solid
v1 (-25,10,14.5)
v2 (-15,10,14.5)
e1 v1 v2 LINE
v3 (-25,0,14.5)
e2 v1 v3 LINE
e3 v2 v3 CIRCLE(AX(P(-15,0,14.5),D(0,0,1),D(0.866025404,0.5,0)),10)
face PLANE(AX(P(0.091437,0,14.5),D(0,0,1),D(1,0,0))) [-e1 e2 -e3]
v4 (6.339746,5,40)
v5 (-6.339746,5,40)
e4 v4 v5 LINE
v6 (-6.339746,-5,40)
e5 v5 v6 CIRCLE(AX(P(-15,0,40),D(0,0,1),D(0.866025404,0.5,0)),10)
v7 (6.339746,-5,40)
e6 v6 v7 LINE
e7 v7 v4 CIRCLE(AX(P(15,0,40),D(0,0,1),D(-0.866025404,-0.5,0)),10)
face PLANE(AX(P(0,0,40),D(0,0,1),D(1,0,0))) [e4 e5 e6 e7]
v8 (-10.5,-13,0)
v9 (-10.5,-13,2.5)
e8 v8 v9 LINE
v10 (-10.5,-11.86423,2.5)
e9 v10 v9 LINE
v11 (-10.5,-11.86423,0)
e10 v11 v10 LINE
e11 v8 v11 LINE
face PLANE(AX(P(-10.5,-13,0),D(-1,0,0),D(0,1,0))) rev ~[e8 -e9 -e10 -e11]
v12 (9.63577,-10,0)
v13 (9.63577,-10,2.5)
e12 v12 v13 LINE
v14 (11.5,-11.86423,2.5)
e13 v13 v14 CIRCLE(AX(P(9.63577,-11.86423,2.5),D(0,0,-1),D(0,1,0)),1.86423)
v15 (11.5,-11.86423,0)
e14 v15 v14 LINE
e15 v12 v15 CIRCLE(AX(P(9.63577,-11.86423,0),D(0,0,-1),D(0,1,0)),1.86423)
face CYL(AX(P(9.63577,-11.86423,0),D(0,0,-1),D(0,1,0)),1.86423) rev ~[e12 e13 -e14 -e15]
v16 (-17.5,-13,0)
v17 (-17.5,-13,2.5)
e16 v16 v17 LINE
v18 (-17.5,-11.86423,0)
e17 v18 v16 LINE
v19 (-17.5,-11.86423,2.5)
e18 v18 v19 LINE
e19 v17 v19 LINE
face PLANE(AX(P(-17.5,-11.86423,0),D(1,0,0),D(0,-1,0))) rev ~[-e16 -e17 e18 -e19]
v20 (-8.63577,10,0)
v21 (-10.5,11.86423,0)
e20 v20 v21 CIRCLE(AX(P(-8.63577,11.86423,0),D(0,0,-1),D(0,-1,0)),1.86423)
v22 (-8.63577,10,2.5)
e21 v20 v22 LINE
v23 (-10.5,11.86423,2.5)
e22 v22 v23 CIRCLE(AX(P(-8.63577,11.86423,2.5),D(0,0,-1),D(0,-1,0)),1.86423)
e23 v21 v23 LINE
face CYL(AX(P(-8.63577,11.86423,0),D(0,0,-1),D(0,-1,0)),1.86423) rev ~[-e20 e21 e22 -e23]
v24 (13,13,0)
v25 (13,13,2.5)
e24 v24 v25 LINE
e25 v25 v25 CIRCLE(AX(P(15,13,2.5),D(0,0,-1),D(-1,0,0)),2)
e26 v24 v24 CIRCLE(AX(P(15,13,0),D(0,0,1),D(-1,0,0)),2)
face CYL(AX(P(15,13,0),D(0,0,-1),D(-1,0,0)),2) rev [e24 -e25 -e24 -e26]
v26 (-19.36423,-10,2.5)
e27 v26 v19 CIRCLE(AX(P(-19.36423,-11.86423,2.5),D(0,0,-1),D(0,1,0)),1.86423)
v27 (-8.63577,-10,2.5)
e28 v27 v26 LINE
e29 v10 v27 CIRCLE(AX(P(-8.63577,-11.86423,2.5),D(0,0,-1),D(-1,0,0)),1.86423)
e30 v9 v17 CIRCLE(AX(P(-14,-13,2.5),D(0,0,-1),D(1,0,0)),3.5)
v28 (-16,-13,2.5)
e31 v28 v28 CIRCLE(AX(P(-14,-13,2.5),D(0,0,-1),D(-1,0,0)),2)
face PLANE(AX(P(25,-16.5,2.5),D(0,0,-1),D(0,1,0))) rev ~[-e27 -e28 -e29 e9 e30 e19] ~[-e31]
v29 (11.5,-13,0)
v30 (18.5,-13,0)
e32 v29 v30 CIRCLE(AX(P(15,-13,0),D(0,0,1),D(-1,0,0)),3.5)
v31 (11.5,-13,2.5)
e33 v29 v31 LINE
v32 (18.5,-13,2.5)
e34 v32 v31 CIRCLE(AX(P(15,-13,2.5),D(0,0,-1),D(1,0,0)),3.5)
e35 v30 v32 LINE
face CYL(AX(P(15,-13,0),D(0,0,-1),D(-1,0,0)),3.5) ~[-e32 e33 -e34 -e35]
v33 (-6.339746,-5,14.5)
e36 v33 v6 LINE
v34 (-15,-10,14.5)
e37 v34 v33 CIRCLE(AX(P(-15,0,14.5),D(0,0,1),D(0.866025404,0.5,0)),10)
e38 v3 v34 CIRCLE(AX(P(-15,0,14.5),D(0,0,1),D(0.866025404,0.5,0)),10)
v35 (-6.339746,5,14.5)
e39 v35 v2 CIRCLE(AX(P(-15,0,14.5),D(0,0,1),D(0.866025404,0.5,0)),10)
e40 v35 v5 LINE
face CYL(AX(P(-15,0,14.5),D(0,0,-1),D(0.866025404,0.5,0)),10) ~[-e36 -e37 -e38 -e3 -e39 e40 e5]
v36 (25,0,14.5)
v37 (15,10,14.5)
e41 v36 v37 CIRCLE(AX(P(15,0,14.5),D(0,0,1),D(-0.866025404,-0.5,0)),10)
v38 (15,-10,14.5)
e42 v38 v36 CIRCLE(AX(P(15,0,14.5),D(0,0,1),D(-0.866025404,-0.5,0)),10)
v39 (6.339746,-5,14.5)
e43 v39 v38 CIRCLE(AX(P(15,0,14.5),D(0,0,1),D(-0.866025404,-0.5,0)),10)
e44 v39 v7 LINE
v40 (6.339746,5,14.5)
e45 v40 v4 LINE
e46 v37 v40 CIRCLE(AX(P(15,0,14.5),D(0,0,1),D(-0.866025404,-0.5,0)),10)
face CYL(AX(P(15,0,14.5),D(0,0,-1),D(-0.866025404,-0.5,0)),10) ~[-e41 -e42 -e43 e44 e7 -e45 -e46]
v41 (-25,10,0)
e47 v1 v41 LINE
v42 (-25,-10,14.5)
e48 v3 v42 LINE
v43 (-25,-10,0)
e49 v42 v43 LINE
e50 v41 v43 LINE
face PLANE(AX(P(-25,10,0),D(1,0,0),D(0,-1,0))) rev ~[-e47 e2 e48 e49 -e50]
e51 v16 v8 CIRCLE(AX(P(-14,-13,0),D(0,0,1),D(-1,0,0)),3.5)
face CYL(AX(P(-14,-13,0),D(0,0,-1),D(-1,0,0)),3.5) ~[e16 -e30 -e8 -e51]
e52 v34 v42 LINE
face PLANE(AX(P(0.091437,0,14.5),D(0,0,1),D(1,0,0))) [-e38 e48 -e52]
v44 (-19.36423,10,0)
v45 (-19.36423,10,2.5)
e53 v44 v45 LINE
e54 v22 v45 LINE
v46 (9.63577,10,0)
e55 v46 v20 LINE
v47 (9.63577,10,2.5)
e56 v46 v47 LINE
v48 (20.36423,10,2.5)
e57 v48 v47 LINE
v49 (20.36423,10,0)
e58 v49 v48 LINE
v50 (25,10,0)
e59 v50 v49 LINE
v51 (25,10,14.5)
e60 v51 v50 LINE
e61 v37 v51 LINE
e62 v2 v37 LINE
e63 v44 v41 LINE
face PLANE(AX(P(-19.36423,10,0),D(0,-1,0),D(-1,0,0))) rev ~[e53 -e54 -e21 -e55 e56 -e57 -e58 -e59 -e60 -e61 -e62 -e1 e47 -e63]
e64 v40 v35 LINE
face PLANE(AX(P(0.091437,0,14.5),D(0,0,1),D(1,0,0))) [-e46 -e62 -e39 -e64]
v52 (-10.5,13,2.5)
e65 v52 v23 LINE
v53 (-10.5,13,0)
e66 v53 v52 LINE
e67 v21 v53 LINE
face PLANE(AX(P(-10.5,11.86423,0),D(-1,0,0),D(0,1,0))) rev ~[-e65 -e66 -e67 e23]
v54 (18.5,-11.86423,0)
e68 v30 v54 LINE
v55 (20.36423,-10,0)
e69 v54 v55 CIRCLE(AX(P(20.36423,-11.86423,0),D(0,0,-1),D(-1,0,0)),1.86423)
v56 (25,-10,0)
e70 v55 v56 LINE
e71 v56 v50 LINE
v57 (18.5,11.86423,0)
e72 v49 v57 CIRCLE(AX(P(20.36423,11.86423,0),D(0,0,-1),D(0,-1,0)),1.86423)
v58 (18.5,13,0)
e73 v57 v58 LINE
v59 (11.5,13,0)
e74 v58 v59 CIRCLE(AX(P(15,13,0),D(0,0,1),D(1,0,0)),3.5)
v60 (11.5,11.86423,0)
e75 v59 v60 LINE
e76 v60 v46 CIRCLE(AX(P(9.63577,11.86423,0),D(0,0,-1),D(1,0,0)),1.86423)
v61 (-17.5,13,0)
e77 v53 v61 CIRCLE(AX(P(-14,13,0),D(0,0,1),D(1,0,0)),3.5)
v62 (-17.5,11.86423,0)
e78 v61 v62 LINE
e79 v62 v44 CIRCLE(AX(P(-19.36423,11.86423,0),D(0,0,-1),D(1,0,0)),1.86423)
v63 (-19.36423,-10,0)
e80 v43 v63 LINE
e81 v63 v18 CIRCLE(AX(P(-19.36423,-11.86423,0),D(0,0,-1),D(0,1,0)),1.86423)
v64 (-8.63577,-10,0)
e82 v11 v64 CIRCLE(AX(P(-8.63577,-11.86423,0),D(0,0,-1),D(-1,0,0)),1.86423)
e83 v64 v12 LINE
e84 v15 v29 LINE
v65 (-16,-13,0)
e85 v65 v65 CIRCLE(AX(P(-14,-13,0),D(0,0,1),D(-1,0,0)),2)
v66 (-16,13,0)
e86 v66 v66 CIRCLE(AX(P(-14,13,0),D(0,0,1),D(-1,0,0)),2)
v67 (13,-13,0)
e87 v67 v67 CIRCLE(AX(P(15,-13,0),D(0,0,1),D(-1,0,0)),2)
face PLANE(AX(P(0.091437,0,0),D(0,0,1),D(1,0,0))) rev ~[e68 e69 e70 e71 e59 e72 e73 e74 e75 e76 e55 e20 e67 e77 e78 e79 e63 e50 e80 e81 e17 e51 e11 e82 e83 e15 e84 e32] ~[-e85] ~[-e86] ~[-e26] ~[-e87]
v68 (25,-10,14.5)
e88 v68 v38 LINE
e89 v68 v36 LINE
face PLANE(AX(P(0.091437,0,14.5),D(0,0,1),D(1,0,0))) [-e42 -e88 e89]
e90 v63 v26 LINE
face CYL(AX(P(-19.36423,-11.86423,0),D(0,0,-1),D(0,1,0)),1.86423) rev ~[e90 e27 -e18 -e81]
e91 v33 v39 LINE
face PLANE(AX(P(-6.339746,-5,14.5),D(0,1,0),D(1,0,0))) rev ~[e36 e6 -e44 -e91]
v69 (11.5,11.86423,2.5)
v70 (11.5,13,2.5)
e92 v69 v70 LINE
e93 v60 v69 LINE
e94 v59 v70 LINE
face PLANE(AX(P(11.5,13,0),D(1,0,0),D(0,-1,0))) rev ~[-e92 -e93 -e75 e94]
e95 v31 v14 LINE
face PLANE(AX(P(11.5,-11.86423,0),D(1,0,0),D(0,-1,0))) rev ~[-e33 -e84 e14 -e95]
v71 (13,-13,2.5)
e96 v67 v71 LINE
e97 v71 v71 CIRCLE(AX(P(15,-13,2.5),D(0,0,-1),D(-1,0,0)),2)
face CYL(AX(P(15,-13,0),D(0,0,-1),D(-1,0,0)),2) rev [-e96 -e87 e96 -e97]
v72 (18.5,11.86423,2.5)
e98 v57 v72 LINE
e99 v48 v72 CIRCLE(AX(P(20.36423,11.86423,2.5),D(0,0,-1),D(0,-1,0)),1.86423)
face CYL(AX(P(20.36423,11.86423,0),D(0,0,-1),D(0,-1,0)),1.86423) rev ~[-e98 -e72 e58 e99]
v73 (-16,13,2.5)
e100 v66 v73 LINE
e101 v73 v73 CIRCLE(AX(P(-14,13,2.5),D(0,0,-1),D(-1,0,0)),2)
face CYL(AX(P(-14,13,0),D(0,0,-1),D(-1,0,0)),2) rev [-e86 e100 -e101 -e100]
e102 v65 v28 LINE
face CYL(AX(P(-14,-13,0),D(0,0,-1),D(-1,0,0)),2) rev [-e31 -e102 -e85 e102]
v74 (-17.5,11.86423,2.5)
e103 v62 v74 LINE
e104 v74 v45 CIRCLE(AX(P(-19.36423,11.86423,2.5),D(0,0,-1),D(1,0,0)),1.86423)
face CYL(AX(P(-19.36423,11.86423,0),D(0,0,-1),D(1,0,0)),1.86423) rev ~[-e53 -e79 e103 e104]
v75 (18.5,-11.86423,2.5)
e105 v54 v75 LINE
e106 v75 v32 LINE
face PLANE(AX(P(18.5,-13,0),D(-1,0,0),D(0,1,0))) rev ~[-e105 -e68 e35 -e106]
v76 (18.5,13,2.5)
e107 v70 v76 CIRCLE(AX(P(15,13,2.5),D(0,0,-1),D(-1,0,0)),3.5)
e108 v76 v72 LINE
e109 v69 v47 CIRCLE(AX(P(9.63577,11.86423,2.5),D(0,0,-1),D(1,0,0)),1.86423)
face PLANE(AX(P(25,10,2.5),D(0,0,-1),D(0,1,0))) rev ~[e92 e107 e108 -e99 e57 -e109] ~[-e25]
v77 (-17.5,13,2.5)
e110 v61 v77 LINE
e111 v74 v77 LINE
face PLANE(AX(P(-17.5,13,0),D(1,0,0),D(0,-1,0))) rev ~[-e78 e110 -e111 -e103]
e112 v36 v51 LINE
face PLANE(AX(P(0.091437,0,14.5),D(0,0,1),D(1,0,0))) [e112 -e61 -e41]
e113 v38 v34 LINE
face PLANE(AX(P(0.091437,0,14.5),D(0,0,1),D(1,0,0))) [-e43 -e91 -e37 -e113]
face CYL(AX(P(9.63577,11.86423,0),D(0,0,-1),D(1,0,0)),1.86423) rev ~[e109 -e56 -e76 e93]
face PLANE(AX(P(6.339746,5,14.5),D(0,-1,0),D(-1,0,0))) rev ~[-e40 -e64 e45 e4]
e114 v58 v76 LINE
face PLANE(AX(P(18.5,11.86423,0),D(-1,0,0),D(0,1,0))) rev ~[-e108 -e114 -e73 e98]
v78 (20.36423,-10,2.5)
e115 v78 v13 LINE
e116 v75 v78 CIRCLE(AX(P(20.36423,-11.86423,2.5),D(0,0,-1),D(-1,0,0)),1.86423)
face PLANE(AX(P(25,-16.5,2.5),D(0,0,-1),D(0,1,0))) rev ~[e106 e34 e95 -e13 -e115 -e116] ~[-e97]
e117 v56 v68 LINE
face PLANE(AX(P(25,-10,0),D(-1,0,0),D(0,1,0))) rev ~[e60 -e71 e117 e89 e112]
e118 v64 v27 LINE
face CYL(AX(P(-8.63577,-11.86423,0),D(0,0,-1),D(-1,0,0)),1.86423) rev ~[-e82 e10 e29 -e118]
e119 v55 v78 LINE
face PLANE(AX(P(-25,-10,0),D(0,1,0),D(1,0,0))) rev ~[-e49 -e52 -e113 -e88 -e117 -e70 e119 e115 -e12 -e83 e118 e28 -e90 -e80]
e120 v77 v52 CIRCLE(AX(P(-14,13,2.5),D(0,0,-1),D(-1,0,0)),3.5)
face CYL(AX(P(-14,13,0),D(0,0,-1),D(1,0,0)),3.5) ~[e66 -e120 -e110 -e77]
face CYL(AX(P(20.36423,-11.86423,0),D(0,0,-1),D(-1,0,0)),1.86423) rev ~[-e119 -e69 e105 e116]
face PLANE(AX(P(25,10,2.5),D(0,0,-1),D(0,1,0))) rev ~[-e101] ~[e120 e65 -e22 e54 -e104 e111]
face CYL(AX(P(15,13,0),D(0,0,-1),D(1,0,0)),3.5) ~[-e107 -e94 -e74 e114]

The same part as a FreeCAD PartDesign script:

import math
import FreeCAD as App
import Part
import Sketcher
from FreeCAD import Vector
Q = App.Units.Quantity


def add_polygon(sketch, points):
    """Adds a closed chain of lines whose ends are joined by coincident constraints."""
    first, n = sketch.GeometryCount, len(points)
    for a, b in zip(points, points[1:] + points[:1]):
        sketch.addGeometry(Part.LineSegment(App.Vector(*a, 0), App.Vector(*b, 0)), False)
    for i in range(n):
        sketch.addConstraint(Sketcher.Constraint("Coincident", first + i, 2, first + (i + 1) % n, 1))

doc = App.newDocument("Part")
params = doc.addObject("Spreadsheet::Sheet", "Params")
for row, (alias, value) in enumerate([
    ("sketch1_diameter", "4 mm"),
    ("sketch1_radius", "3.5 mm"),
    ("sketch1_height", "20 mm"),
    ("pad1_length", "14.5 mm"),
    ("sketch2_height", "12 mm"),
    ("sketch2_width", "6.5 mm"),
    ("sketch3_radius", "10 mm"),
    ("pad2_length", "25.5 mm"),
], start=1):
    params.set(f"A{row}", alias)
    params.set(f"B{row}", "=" + value)
    params.setAlias(f"B{row}", alias)

body = doc.addObject("PartDesign::Body", "Body")

# Sketch on XY plane
sketch1 = doc.addObject("Sketcher::SketchObject", "Sketch")
body.addObject(sketch1)
sketch1.AttachmentSupport = (doc.XY_Plane, [""])
sketch1.MapMode = "FlatFace"
sketch1.addGeometry([
    Part.LineSegment(Vector(-25, -10, 0), Vector(-19.36423, -10, 0)),  # 0
    Part.ArcOfCircle(Part.Circle(Vector(-19.36423, -11.86423, 0), Vector(0, 0, 1), 1.86423), math.radians(0), math.radians(90)),  # 1
    Part.LineSegment(Vector(-17.5, -11.86423, 0), Vector(-17.5, -13, 0)),  # 2
    Part.ArcOfCircle(Part.Circle(Vector(-14, -13, 0), Vector(0, 0, 1), 3.5), math.radians(180), math.radians(360)),  # 3
    Part.LineSegment(Vector(-10.5, -13, 0), Vector(-10.5, -11.86423, 0)),  # 4
    Part.ArcOfCircle(Part.Circle(Vector(-8.63577, -11.86423, 0), Vector(0, 0, 1), 1.86423), math.radians(90), math.radians(180)),  # 5
    Part.LineSegment(Vector(-8.63577, -10, 0), Vector(9.63577, -10, 0)),  # 6
    Part.ArcOfCircle(Part.Circle(Vector(9.63577, -11.86423, 0), Vector(0, 0, 1), 1.86423), math.radians(0), math.radians(90)),  # 7
    Part.LineSegment(Vector(11.5, -11.86423, 0), Vector(11.5, -13, 0)),  # 8
    Part.ArcOfCircle(Part.Circle(Vector(15, -13, 0), Vector(0, 0, 1), 3.5), math.radians(180), math.radians(360)),  # 9
    Part.LineSegment(Vector(18.5, -13, 0), Vector(18.5, -11.86423, 0)),  # 10
    Part.ArcOfCircle(Part.Circle(Vector(20.36423, -11.86423, 0), Vector(0, 0, 1), 1.86423), math.radians(90), math.radians(180)),  # 11
    Part.LineSegment(Vector(20.36423, -10, 0), Vector(25, -10, 0)),  # 12
    Part.LineSegment(Vector(25, -10, 0), Vector(25, 10, 0)),  # 13
    Part.LineSegment(Vector(25, 10, 0), Vector(20.36423, 10, 0)),  # 14
    Part.ArcOfCircle(Part.Circle(Vector(20.36423, 11.86423, 0), Vector(0, 0, 1), 1.86423), math.radians(180), math.radians(270)),  # 15
    Part.LineSegment(Vector(18.5, 11.86423, 0), Vector(18.5, 13, 0)),  # 16
    Part.ArcOfCircle(Part.Circle(Vector(15, 13, 0), Vector(0, 0, 1), 3.5), math.radians(0), math.radians(180)),  # 17
    Part.LineSegment(Vector(11.5, 13, 0), Vector(11.5, 11.86423, 0)),  # 18
    Part.ArcOfCircle(Part.Circle(Vector(9.63577, 11.86423, 0), Vector(0, 0, 1), 1.86423), math.radians(-90), math.radians(0)),  # 19
    Part.LineSegment(Vector(9.63577, 10, 0), Vector(-8.63577, 10, 0)),  # 20
    Part.ArcOfCircle(Part.Circle(Vector(-8.63577, 11.86423, 0), Vector(0, 0, 1), 1.86423), math.radians(180), math.radians(270)),  # 21
    Part.LineSegment(Vector(-10.5, 11.86423, 0), Vector(-10.5, 13, 0)),  # 22
    Part.ArcOfCircle(Part.Circle(Vector(-14, 13, 0), Vector(0, 0, 1), 3.5), math.radians(0), math.radians(180)),  # 23
    Part.LineSegment(Vector(-17.5, 13, 0), Vector(-17.5, 11.86423, 0)),  # 24
    Part.ArcOfCircle(Part.Circle(Vector(-19.36423, 11.86423, 0), Vector(0, 0, 1), 1.86423), math.radians(-90), math.radians(0)),  # 25
    Part.LineSegment(Vector(-19.36423, 10, 0), Vector(-25, 10, 0)),  # 26
    Part.LineSegment(Vector(-25, 10, 0), Vector(-25, -10, 0)),  # 27
    Part.Circle(Vector(-14, -13, 0), Vector(0, 0, 1), 2),  # 28
    Part.Circle(Vector(15, -13, 0), Vector(0, 0, 1), 2),  # 29
    Part.Circle(Vector(-14, 13, 0), Vector(0, 0, 1), 2),  # 30
    Part.Circle(Vector(15, 13, 0), Vector(0, 0, 1), 2),  # 31
], False)
sketch1.addConstraint([
    Sketcher.Constraint("Tangent", 0, 2, 1, 2),
    Sketcher.Constraint("Tangent", 1, 1, 2, 1),
    Sketcher.Constraint("Tangent", 2, 2, 3, 1),
    Sketcher.Constraint("Tangent", 3, 2, 4, 1),
    Sketcher.Constraint("Tangent", 4, 2, 5, 2),
    Sketcher.Constraint("Tangent", 5, 1, 6, 1),
    Sketcher.Constraint("Tangent", 6, 2, 7, 2),
    Sketcher.Constraint("Tangent", 7, 1, 8, 1),
    Sketcher.Constraint("Tangent", 8, 2, 9, 1),
    Sketcher.Constraint("Tangent", 9, 2, 10, 1),
    Sketcher.Constraint("Tangent", 10, 2, 11, 2),
    Sketcher.Constraint("Tangent", 11, 1, 12, 1),
    Sketcher.Constraint("Coincident", 12, 2, 13, 1),
    Sketcher.Constraint("Coincident", 13, 2, 14, 1),
    Sketcher.Constraint("Tangent", 14, 2, 15, 2),
    Sketcher.Constraint("Tangent", 15, 1, 16, 1),
    Sketcher.Constraint("Tangent", 16, 2, 17, 1),
    Sketcher.Constraint("Tangent", 17, 2, 18, 1),
    Sketcher.Constraint("Tangent", 18, 2, 19, 2),
    Sketcher.Constraint("Tangent", 19, 1, 20, 1),
    Sketcher.Constraint("Tangent", 20, 2, 21, 2),
    Sketcher.Constraint("Tangent", 21, 1, 22, 1),
    Sketcher.Constraint("Tangent", 22, 2, 23, 1),
    Sketcher.Constraint("Tangent", 23, 2, 24, 1),
    Sketcher.Constraint("Tangent", 24, 2, 25, 2),
    Sketcher.Constraint("Tangent", 25, 1, 26, 1),
    Sketcher.Constraint("Coincident", 26, 2, 27, 1),
    Sketcher.Constraint("Coincident", 27, 2, 0, 1),
    Sketcher.Constraint("Horizontal", 0),
    Sketcher.Constraint("Vertical", 2),
    Sketcher.Constraint("Vertical", 4),
    Sketcher.Constraint("Horizontal", 6),
    Sketcher.Constraint("Vertical", 8),
    Sketcher.Constraint("Vertical", 10),
    Sketcher.Constraint("Horizontal", 12),
    Sketcher.Constraint("Vertical", 13),
    Sketcher.Constraint("Horizontal", 14),
    Sketcher.Constraint("Vertical", 16),
    Sketcher.Constraint("Vertical", 18),
    Sketcher.Constraint("Horizontal", 20),
    Sketcher.Constraint("Vertical", 22),
    Sketcher.Constraint("Vertical", 24),
    Sketcher.Constraint("Horizontal", 26),
    Sketcher.Constraint("Vertical", 27),
    Sketcher.Constraint("Coincident", 28, 3, 3, 3),
    Sketcher.Constraint("Coincident", 29, 3, 9, 3),
    Sketcher.Constraint("Coincident", 30, 3, 23, 3),
    Sketcher.Constraint("Coincident", 31, 3, 17, 3),
    Sketcher.Constraint("Equal", 1, 5),
    Sketcher.Constraint("Equal", 5, 7),
    Sketcher.Constraint("Equal", 3, 9),
    Sketcher.Constraint("Equal", 7, 11),
    Sketcher.Constraint("Equal", 11, 15),
    Sketcher.Constraint("Equal", 9, 17),
    Sketcher.Constraint("Equal", 15, 19),
    Sketcher.Constraint("Equal", 19, 21),
    Sketcher.Constraint("Equal", 17, 23),
    Sketcher.Constraint("Equal", 21, 25),
    Sketcher.Constraint("Equal", 28, 29),
    Sketcher.Constraint("Equal", 29, 30),
    Sketcher.Constraint("Equal", 30, 31),
    Sketcher.Constraint("Symmetric", 12, 2, 26, 2, -1, 1),
    Sketcher.Constraint("Symmetric", 11, 3, 15, 3, -1),
    Sketcher.Constraint("Symmetric", 5, 3, 21, 3, -1),
    Sketcher.Constraint("Horizontal", 1, 3, 5, 3),
    Sketcher.Constraint("Horizontal", 3, 3, 9, 3),
    Sketcher.Constraint("Horizontal", 7, 3, 11, 3),
    Sketcher.Constraint("Horizontal", 17, 3, 23, 3),
    Sketcher.Constraint("Equal", 10, 16),
    Sketcher.Constraint("Diameter", 28, Q("4 mm")),
    Sketcher.Constraint("Radius", 3, Q("3.5 mm")),
    Sketcher.Constraint("DistanceY", 13, 1, 13, 2, Q("20 mm")),
    Sketcher.Constraint("DistanceX", 3, 3, -1, 1, Q("14 mm")),
    Sketcher.Constraint("DistanceY", 3, 3, -1, 1, Q("13 mm")),
    Sketcher.Constraint("DistanceX", -1, 1, 9, 3, Q("15 mm")),
    Sketcher.Constraint("DistanceX", -1, 1, 12, 2, Q("25 mm")),
    Sketcher.Constraint("Radius", 1, Q("1.86423 mm")),
])
sketch1.setExpression("Constraints[69]", "Params.sketch1_diameter")
sketch1.setExpression("Constraints[70]", "Params.sketch1_radius")
sketch1.setExpression("Constraints[71]", "Params.sketch1_height")
pad1 = doc.addObject("PartDesign::Pad", "Pad")
body.addObject(pad1)
pad1.Profile = sketch1
pad1.setExpression("Length", "Params.pad1_length")

# Sketch on YZ plane
sketch2 = doc.addObject("Sketcher::SketchObject", "Sketch001")
body.addObject(sketch2)
sketch2.AttachmentSupport = (doc.YZ_Plane, [""])
sketch2.MapMode = "FlatFace"
sketch2.AttachmentOffset = App.Placement(Vector(0, 0, 25), App.Rotation())
add_polygon(sketch2, [(16.5, 14.5), (10, 14.5), (10, 2.5), (16.5, 2.5)])  # lines 0-3
add_polygon(sketch2, [(-10, 14.5), (-16.5, 14.5), (-16.5, 2.5), (-10, 2.5)])  # lines 4-7
sketch2.addConstraint([
    Sketcher.Constraint("Horizontal", 0),
    Sketcher.Constraint("Vertical", 1),
    Sketcher.Constraint("Horizontal", 2),
    Sketcher.Constraint("Vertical", 3),
    Sketcher.Constraint("Horizontal", 4),
    Sketcher.Constraint("Vertical", 5),
    Sketcher.Constraint("Horizontal", 6),
    Sketcher.Constraint("Vertical", 7),
    Sketcher.Constraint("Symmetric", 3, 2, 4, 2, -2),
    Sketcher.Constraint("Symmetric", 1, 2, 6, 2, -2),
    Sketcher.Constraint("DistanceY", 1, 2, 1, 1, Q("12 mm")),
    Sketcher.Constraint("DistanceX", 0, 2, 0, 1, Q("6.5 mm")),
    Sketcher.Constraint("DistanceX", -1, 1, 0, 2, Q("10 mm")),
    Sketcher.Constraint("DistanceY", -1, 1, 0, 2, Q("14.5 mm")),
])
sketch2.setExpression("Constraints[18]", "Params.sketch2_height")
sketch2.setExpression("Constraints[19]", "Params.sketch2_width")
pocket1 = doc.addObject("PartDesign::Pocket", "Pocket")
body.addObject(pocket1)
pocket1.Profile = sketch2
pocket1.Type = "ThroughAll"

# Sketch on XY plane
sketch3 = doc.addObject("Sketcher::SketchObject", "Sketch002")
body.addObject(sketch3)
sketch3.AttachmentSupport = (doc.XY_Plane, [""])
sketch3.MapMode = "FlatFace"
sketch3.AttachmentOffset = App.Placement(Vector(0, 0, 14.5), App.Rotation())
sketch3.addGeometry([
    Part.LineSegment(Vector(-6.339746, -5, 0), Vector(6.339746, -5, 0)),
    Part.ArcOfCircle(Part.Circle(Vector(15, 0, 0), Vector(0, 0, 1), 10), math.radians(-150), math.radians(150)),
    Part.LineSegment(Vector(6.339746, 5, 0), Vector(-6.339746, 5, 0)),
    Part.ArcOfCircle(Part.Circle(Vector(-15, 0, 0), Vector(0, 0, 1), 10), math.radians(30), math.radians(330)),
], False)
sketch3.addConstraint([
    Sketcher.Constraint("Coincident", 0, 2, 1, 1),
    Sketcher.Constraint("Coincident", 1, 2, 2, 1),
    Sketcher.Constraint("Coincident", 2, 2, 3, 1),
    Sketcher.Constraint("Coincident", 3, 2, 0, 1),
    Sketcher.Constraint("Horizontal", 0),
    Sketcher.Constraint("Horizontal", 2),
    Sketcher.Constraint("Equal", 1, 3),
    Sketcher.Constraint("Symmetric", 1, 3, 3, 3, -1, 1),
    Sketcher.Constraint("Symmetric", 0, 2, 1, 2, -1),
    Sketcher.Constraint("Radius", 1, Q("10 mm")),
    Sketcher.Constraint("DistanceX", -1, 1, 1, 3, Q("15 mm")),
    Sketcher.Constraint("DistanceY", 0, 2, -1, 1, Q("5 mm")),
])
sketch3.setExpression("Constraints[9]", "Params.sketch3_radius")
pad2 = doc.addObject("PartDesign::Pad", "Pad001")
body.addObject(pad2)
pad2.Profile = sketch3
pad2.setExpression("Length", "Params.pad2_length")

doc.recompute()
